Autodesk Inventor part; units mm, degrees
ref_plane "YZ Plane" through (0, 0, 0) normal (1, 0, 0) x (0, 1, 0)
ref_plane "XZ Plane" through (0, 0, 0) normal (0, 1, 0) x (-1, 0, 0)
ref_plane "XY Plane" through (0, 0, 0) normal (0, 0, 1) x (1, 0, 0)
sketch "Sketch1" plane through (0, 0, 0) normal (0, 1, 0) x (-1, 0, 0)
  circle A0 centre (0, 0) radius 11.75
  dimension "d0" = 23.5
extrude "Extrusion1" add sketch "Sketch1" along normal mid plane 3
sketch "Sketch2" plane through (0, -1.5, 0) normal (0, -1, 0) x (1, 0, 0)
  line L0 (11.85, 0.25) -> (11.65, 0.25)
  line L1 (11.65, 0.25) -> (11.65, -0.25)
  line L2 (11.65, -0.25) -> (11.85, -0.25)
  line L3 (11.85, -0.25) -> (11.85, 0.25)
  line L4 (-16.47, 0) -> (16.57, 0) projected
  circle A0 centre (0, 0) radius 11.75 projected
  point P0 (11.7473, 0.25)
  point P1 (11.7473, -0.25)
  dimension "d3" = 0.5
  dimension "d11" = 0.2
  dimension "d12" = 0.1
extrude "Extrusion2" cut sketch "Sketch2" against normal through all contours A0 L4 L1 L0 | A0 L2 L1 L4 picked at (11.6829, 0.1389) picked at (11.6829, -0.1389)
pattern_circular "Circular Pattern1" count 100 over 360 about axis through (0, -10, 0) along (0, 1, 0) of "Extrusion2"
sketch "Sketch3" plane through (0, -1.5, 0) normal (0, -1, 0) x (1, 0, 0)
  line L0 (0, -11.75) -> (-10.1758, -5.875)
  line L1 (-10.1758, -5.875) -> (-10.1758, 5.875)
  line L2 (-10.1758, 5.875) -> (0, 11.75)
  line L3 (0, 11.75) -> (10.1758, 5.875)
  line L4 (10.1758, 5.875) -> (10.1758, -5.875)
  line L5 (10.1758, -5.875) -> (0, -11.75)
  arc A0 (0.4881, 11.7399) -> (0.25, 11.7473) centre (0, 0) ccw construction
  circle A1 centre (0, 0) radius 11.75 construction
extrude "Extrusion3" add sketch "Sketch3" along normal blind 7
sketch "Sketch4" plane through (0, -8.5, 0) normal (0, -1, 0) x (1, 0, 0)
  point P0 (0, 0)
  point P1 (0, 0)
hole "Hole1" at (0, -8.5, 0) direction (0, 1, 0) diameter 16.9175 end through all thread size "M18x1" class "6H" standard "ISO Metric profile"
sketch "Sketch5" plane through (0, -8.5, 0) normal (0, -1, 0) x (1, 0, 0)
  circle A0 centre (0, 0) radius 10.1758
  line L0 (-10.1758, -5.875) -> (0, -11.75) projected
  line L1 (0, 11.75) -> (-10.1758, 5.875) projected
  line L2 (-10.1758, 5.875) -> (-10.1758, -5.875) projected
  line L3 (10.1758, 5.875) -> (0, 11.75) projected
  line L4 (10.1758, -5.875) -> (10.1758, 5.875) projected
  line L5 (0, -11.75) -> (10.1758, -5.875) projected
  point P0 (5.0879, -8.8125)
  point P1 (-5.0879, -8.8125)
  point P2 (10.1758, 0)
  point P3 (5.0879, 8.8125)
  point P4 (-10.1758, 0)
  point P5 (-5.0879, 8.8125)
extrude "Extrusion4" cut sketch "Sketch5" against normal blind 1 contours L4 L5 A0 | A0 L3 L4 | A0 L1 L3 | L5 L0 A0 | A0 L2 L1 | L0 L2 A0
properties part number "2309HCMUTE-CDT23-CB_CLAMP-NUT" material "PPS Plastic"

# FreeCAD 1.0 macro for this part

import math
import FreeCAD as App
import Part
import Sketcher

V = App.Vector
Q = App.Units.Quantity


def add_polygon(sketch, points):
    """Adds a closed chain of lines whose ends are joined by coincident constraints."""
    first, n = sketch.GeometryCount, len(points)
    for a, b in zip(points, points[1:] + points[:1]):
        sketch.addGeometry(Part.LineSegment(App.Vector(*a, 0), App.Vector(*b, 0)), False)
    for i in range(n):
        sketch.addConstraint(Sketcher.Constraint("Coincident", first + i, 2, first + (i + 1) % n, 1))

doc = App.newDocument("Part")
body = doc.addObject("PartDesign::Body", "Body")

sketch1 = body.newObject("Sketcher::SketchObject", "Sketch")
sketch1.AttachmentSupport = (doc.getObject("XZ_Plane"), [""])
sketch1.MapMode = "FlatFace"
sketch1.addGeometry(Part.Circle(V(0, 0, 0), V(0, 0, 1), 12), False)
sketch1.addConstraint([
    Sketcher.Constraint("Coincident", 0, 3, -1, 1),
    Sketcher.Constraint("Diameter", 0, 23.5),
])
pad1 = body.newObject("PartDesign::Pad", "Pad")
pad1.Profile = sketch1
pad1.Length = 3
pad1.Midplane = True

sketch2 = body.newObject("Sketcher::SketchObject", "Sketch001")
sketch2.AttachmentSupport = (doc.getObject("XZ_Plane"), [""])
sketch2.MapMode = "FlatFace"
sketch2.AttachmentOffset = App.Placement(V(0, 0, 1.5), App.Rotation())
sketch2.addGeometry([
    Part.LineSegment(V(11.75, 0.25, 0), V(11.65, 0.25, 0)),
    Part.LineSegment(V(11.65, 0.25, 0), V(11.65, -0.25, 0)),
    Part.LineSegment(V(11.65, -0.25, 0), V(11.75, -0.25, 0)),
    Part.ArcOfCircle(Part.Circle(V(0, 0, 0), V(0, 0, 1), 11.75), math.radians(-1.22), math.radians(1.22)),
], False)
sketch2.addConstraint([
    Sketcher.Constraint("Coincident", 0, 2, 1, 1),
    Sketcher.Constraint("Coincident", 1, 2, 2, 1),
    Sketcher.Constraint("Coincident", 2, 2, 3, 1),
    Sketcher.Constraint("Coincident", 3, 2, 0, 1),
    Sketcher.Constraint("Horizontal", 0),
    Sketcher.Constraint("Vertical", 1),
    Sketcher.Constraint("Horizontal", 2),
    Sketcher.Constraint("Coincident", 3, 3, -1, 1),
    Sketcher.Constraint("Vertical", 2, 2, 3, 2),
    Sketcher.Constraint("DistanceY", 1, 2, 1, 1, 0.5),
    Sketcher.Constraint("Radius", 3, 11.75),
    Sketcher.Constraint("DistanceX", -1, 1, 0, 2, 11.65),
])
pocket1 = body.newObject("PartDesign::Pocket", "Pocket")
pocket1.Profile = sketch2
pocket1.Type = "ThroughAll"
doc.recompute()

polarpattern = body.newObject("PartDesign::PolarPattern", "PolarPattern")
polarpattern.Originals = [pocket1]
polarpattern.Axis = (doc.getObject("Y_Axis"), [""])
polarpattern.Angle = 360
polarpattern.Occurrences = 100
body.Tip = polarpattern

sketch3 = body.newObject("Sketcher::SketchObject", "Sketch002")
sketch3.AttachmentSupport = (doc.getObject("XZ_Plane"), [""])
sketch3.MapMode = "FlatFace"
sketch3.AttachmentOffset = App.Placement(V(0, 0, 1.5), App.Rotation())
add_polygon(sketch3, [(-10, -6), (0, -12), (10, -6), (10, 6), (0, 12), (-10, 6)])
sketch3.addConstraint([
    Sketcher.Constraint("Vertical", 2),
    Sketcher.Constraint("Vertical", 5),
    Sketcher.Constraint("Symmetric", 0, 2, 3, 2, -1, 1),
    Sketcher.Constraint("Symmetric", 1, 2, 4, 2, -1, 1),
    Sketcher.Constraint("PointOnObject", 0, 2, -2),
    Sketcher.Constraint("Parallel", 0, 3),
    Sketcher.Constraint("Horizontal", 2, 2, 4, 2),
    Sketcher.Constraint("Angle", 0, Q("-30 deg")),
    Sketcher.Constraint("DistanceY", 2, 1, 2, 2, 11.75),
    Sketcher.Constraint("DistanceY", 0, 2, 3, 2, 23.5),
])
pad2 = body.newObject("PartDesign::Pad", "Pad001")
pad2.Profile = sketch3
pad2.Length = 7

sketch4 = body.newObject("Sketcher::SketchObject", "Sketch003")
sketch4.AttachmentSupport = (doc.getObject("XZ_Plane"), [""])
sketch4.MapMode = "FlatFace"
sketch4.AttachmentOffset = App.Placement(V(0, 0, 8.5), App.Rotation())
sketch4.addGeometry(Part.Circle(V(0, 0, 0), V(0, 0, 1), 8), False)
sketch4.addConstraint([
    Sketcher.Constraint("Coincident", 0, 3, -1, 1),
    Sketcher.Constraint("Diameter", 0, 16.9175),
])
doc.recompute()
hole = body.newObject("PartDesign::Hole", "Hole")
hole.Profile = sketch4
hole.ThreadType = "None"
hole.Diameter = 16.9175
hole.DepthType = "ThroughAll"

sketch5 = body.newObject("Sketcher::SketchObject", "Sketch004")
sketch5.AttachmentSupport = (doc.getObject("XZ_Plane"), [""])
sketch5.MapMode = "FlatFace"
sketch5.AttachmentOffset = App.Placement(V(0, 0, 8.5), App.Rotation())
sketch5.addGeometry([
    Part.LineSegment(V(10, -6, 0), V(10, 0, 0)),
    Part.ArcOfCircle(Part.Circle(V(0, 0, 0), V(0, 0, 1), 10), math.radians(-60), math.radians(0)),
    Part.LineSegment(V(5, -9, 0), V(10, -6, 0)),
    Part.ArcOfCircle(Part.Circle(V(0, 0, 0), V(0, 0, 1), 10), math.radians(0), math.radians(60)),
    Part.LineSegment(V(10, 0, 0), V(10, 6, 0)),
    Part.LineSegment(V(10, 6, 0), V(5, 9, 0)),
    Part.ArcOfCircle(Part.Circle(V(0, 0, 0), V(0, 0, 1), 10), math.radians(60), math.radians(120)),
    Part.LineSegment(V(5, 9, 0), V(0, 12, 0)),
    Part.LineSegment(V(0, 12, 0), V(-5, 9, 0)),
    Part.LineSegment(V(0, -12, 0), V(5, -9, 0)),
    Part.ArcOfCircle(Part.Circle(V(0, 0, 0), V(0, 0, 1), 10), math.radians(-120), math.radians(-60)),
    Part.LineSegment(V(-5, -9, 0), V(0, -12, 0)),
    Part.ArcOfCircle(Part.Circle(V(0, 0, 0), V(0, 0, 1), 10), math.radians(120), math.radians(180)),
    Part.LineSegment(V(-5, 9, 0), V(-10, 6, 0)),
    Part.LineSegment(V(-10, 6, 0), V(-10, 0, 0)),
    Part.LineSegment(V(-10, -6, 0), V(-5, -9, 0)),
    Part.ArcOfCircle(Part.Circle(V(0, 0, 0), V(0, 0, 1), 10), math.radians(180), math.radians(240)),
    Part.LineSegment(V(-10, 0, 0), V(-10, -6, 0)),
], False)
sketch5.addConstraint([
    Sketcher.Constraint("Tangent", 0, 2, 1, 2),
    Sketcher.Constraint("Tangent", 1, 1, 2, 1),
    Sketcher.Constraint("Coincident", 2, 2, 0, 1),
    Sketcher.Constraint("Tangent", 3, 1, 4, 1),
    Sketcher.Constraint("Coincident", 4, 2, 5, 1),
    Sketcher.Constraint("Tangent", 5, 2, 3, 2),
    Sketcher.Constraint("Tangent", 6, 1, 7, 1),
    Sketcher.Constraint("Coincident", 7, 2, 8, 1),
    Sketcher.Constraint("Tangent", 8, 2, 6, 2),
    Sketcher.Constraint("Tangent", 9, 2, 10, 2),
    Sketcher.Constraint("Tangent", 10, 1, 11, 1),
    Sketcher.Constraint("Coincident", 11, 2, 9, 1),
    Sketcher.Constraint("Tangent", 12, 1, 13, 1),
    Sketcher.Constraint("Coincident", 13, 2, 14, 1),
    Sketcher.Constraint("Tangent", 14, 2, 12, 2),
    Sketcher.Constraint("Tangent", 15, 2, 16, 2),
    Sketcher.Constraint("Tangent", 16, 1, 17, 1),
    Sketcher.Constraint("Coincident", 17, 2, 15, 1),
    Sketcher.Constraint("Vertical", 0),
    Sketcher.Constraint("Vertical", 4),
    Sketcher.Constraint("Vertical", 14),
    Sketcher.Constraint("Vertical", 17),
    Sketcher.Constraint("Coincident", 1, 3, -1, 1),
    Sketcher.Constraint("Coincident", 3, 3, -1, 1),
    Sketcher.Constraint("Coincident", 6, 3, -1, 1),
    Sketcher.Constraint("Coincident", 10, 3, -1, 1),
    Sketcher.Constraint("Coincident", 12, 3, -1, 1),
    Sketcher.Constraint("Coincident", 16, 3, -1, 1),
    Sketcher.Constraint("Coincident", 6, 1, 5, 2),
    Sketcher.Constraint("Coincident", 9, 2, 1, 1),
    Sketcher.Constraint("Coincident", 12, 1, 8, 2),
    Sketcher.Constraint("Coincident", 15, 2, 10, 1),
    Sketcher.Constraint("Equal", 1, 3),
    Sketcher.Constraint("Symmetric", 7, 2, 11, 2, -1, 1),
    Sketcher.Constraint("PointOnObject", 7, 2, -2),
    Sketcher.Constraint("Equal", 5, 7),
    Sketcher.Constraint("Radius", 1, 10.1758),
])
pocket2 = body.newObject("PartDesign::Pocket", "Pocket001")
pocket2.Profile = sketch5
pocket2.Length = 1

doc.recompute()
